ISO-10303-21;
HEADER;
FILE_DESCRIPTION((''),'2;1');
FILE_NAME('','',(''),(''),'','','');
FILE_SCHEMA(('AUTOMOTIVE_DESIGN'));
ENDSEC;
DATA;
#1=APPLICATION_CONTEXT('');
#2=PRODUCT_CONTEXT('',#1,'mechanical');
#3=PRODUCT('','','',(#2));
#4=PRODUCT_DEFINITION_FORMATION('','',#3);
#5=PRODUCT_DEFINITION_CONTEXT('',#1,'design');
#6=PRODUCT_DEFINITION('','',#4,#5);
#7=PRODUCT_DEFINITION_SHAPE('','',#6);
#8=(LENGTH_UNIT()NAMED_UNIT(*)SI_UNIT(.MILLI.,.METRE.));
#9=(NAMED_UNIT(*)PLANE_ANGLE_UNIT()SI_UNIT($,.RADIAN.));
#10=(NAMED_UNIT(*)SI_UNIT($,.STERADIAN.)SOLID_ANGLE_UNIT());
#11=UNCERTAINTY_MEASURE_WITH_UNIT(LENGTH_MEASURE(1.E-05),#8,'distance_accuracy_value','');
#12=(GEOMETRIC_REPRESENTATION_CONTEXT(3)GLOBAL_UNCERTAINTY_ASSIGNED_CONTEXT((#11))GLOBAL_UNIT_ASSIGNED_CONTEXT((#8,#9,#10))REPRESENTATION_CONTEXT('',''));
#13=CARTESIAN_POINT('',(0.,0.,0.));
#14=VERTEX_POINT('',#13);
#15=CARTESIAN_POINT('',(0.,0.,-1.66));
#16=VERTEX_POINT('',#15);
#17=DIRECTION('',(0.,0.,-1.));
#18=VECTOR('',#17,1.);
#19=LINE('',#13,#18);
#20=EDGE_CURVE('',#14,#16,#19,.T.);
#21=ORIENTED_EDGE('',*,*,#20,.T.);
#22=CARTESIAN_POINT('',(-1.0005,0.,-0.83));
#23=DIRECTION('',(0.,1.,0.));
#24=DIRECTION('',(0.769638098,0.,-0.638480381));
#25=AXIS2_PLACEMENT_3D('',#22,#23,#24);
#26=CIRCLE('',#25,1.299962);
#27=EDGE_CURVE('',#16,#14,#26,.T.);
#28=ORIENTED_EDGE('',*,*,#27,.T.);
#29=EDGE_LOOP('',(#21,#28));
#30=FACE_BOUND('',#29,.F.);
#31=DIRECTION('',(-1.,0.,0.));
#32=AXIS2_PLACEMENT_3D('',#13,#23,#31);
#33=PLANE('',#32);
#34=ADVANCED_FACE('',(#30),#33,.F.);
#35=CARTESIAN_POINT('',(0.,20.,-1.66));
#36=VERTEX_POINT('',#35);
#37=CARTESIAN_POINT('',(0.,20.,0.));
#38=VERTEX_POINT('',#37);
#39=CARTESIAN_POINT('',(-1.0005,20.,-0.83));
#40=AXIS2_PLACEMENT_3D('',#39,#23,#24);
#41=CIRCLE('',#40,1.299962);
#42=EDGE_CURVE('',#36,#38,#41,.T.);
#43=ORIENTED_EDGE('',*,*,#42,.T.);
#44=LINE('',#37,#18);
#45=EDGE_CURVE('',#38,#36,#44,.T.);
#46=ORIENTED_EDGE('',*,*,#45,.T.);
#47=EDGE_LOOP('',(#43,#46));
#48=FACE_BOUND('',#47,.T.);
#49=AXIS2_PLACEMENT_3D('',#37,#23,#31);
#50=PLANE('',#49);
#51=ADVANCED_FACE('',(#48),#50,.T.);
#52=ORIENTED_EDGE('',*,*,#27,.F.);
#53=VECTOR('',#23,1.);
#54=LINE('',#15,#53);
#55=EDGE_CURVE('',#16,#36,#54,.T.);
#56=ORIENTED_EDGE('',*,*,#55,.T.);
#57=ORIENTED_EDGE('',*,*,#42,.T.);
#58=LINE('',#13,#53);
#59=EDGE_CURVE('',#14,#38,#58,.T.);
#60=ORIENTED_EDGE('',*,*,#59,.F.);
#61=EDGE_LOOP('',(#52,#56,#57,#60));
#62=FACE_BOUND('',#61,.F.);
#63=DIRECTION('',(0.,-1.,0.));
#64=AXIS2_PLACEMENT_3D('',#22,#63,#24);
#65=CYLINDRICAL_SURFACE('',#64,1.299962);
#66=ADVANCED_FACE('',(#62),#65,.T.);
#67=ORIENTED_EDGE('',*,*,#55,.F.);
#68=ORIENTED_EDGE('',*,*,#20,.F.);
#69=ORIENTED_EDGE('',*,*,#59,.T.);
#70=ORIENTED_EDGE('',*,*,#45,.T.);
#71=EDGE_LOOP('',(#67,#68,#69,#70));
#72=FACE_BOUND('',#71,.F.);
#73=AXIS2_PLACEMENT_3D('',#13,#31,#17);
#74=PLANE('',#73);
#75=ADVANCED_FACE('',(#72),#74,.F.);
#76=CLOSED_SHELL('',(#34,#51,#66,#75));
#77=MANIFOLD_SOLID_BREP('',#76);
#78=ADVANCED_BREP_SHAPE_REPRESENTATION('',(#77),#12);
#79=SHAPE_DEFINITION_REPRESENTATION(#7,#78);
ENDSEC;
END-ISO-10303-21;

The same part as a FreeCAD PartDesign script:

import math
import FreeCAD as App
import Part
import Sketcher
from FreeCAD import Vector
Q = App.Units.Quantity

doc = App.newDocument("Part")
body = doc.addObject("PartDesign::Body", "Body")

# Sketch on XZ plane
sketch1 = body.newObject("Sketcher::SketchObject", "Sketch")
sketch1.AttachmentSupport = (doc.getObject("XZ_Plane"), [""])
sketch1.MapMode = "FlatFace"
sketch1.addGeometry([
    Part.ArcOfCircle(Part.Circle(Vector(-1, -0.8, 0), Vector(0, 0, 1), 1.3), math.radians(40), math.radians(320)),
    Part.LineSegment(Vector(0, 0, 0), Vector(0, -1.7, 0)),
], False)
sketch1.addConstraint([
    Sketcher.Constraint("Coincident", 0, 1, 1, 1),
    Sketcher.Constraint("Coincident", 1, 2, 0, 2),
    Sketcher.Constraint("Vertical", 1),
    Sketcher.Constraint("Coincident", 0, 1, -1, 1),
    Sketcher.Constraint("Radius", 0, Q("1.3 mm")),
    Sketcher.Constraint("DistanceY", 1, 2, 1, 1, Q("1.66 mm")),
])
pad1 = body.newObject("PartDesign::Pad", "Pad")
pad1.Profile = sketch1
pad1.Length = 20
pad1.Reversed = True

doc.recompute()
